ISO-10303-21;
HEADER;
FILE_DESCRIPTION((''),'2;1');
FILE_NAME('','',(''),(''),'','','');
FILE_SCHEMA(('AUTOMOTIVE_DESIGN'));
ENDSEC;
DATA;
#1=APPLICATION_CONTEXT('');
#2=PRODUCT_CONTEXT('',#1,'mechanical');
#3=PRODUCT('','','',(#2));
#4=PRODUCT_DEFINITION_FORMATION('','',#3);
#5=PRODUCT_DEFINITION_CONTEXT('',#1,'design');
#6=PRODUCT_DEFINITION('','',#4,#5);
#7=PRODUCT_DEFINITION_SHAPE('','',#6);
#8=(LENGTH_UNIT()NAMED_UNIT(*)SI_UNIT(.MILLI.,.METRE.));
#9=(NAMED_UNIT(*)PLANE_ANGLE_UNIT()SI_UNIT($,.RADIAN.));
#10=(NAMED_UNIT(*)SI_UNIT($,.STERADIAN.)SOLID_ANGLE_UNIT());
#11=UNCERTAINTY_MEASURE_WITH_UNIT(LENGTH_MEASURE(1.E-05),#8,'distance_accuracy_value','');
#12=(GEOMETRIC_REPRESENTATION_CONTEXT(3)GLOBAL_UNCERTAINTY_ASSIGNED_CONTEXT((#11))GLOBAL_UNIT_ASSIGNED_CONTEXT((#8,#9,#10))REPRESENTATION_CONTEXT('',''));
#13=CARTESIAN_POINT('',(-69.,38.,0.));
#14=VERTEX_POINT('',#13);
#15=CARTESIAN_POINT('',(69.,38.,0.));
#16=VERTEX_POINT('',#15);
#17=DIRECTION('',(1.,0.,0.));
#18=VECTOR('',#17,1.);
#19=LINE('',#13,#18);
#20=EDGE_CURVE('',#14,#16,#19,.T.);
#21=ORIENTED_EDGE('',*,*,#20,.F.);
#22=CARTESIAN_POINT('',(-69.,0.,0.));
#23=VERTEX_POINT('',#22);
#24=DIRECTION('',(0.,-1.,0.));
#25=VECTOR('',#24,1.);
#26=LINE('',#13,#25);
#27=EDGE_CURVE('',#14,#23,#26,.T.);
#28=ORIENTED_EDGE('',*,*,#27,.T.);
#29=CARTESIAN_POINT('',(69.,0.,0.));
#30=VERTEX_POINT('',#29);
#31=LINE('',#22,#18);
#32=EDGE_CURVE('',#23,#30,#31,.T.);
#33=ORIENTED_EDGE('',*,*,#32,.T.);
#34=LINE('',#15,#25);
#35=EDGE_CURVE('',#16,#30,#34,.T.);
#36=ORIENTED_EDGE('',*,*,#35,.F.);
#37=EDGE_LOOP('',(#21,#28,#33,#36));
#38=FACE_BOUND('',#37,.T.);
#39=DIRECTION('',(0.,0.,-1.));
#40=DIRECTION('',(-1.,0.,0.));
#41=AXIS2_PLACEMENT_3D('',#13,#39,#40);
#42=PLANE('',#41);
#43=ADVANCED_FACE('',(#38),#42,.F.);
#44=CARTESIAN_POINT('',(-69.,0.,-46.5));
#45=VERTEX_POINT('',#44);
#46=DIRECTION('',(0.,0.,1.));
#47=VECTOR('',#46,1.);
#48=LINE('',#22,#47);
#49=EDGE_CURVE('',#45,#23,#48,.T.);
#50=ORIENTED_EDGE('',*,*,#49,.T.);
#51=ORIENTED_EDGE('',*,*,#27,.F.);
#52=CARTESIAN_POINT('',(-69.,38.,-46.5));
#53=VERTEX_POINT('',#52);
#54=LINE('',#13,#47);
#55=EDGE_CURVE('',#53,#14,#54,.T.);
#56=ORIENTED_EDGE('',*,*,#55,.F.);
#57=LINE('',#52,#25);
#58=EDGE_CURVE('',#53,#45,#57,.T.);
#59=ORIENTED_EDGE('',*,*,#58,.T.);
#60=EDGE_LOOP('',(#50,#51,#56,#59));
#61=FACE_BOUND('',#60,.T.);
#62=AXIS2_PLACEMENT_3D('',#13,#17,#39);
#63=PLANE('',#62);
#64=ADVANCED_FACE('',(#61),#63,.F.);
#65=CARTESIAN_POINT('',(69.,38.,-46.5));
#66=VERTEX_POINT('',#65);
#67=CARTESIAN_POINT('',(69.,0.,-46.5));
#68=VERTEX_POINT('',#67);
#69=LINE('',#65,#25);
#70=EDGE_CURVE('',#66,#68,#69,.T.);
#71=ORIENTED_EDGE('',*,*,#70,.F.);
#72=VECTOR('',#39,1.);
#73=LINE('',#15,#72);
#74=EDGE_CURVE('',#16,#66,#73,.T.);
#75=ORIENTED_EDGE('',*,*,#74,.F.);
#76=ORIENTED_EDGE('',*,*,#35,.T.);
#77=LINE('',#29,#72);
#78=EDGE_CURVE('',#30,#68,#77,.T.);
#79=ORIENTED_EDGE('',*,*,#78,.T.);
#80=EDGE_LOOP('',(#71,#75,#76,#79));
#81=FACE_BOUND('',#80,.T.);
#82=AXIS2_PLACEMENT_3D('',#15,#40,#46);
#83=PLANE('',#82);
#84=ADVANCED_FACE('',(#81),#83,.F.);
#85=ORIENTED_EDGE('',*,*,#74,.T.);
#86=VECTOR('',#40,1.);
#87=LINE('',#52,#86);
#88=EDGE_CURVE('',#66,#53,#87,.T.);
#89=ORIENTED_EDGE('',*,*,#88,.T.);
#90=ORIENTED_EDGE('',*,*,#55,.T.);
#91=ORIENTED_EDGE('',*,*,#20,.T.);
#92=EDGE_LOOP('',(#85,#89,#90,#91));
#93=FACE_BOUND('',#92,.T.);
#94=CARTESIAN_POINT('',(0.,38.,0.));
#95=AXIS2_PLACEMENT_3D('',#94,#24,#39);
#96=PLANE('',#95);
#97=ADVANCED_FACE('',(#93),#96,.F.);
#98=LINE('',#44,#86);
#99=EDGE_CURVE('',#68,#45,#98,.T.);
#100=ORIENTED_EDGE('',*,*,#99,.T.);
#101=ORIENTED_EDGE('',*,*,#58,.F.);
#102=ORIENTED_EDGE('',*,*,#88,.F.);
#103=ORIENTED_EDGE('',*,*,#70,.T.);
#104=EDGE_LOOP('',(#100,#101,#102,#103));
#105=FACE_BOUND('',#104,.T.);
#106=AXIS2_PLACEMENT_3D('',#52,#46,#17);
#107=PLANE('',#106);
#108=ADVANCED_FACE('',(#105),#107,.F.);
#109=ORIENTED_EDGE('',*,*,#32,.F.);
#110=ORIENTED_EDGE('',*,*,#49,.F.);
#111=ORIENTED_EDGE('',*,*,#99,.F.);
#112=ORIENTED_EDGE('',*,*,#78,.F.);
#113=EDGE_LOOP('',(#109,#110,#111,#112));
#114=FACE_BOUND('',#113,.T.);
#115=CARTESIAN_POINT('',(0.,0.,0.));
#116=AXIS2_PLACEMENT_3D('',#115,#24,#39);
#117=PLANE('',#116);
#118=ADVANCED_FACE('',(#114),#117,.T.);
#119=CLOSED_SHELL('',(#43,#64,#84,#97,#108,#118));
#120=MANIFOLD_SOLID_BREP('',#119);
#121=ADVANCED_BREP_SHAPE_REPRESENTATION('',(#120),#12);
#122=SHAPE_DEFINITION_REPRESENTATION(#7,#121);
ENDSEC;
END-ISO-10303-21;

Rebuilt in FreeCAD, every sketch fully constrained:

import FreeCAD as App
import Part
import Sketcher
from FreeCAD import Vector
Q = App.Units.Quantity


def add_polygon(sketch, points):
    """Adds a closed chain of lines whose ends are joined by coincident constraints."""
    first, n = sketch.GeometryCount, len(points)
    for a, b in zip(points, points[1:] + points[:1]):
        sketch.addGeometry(Part.LineSegment(App.Vector(*a, 0), App.Vector(*b, 0)), False)
    for i in range(n):
        sketch.addConstraint(Sketcher.Constraint("Coincident", first + i, 2, first + (i + 1) % n, 1))

doc = App.newDocument("Part")
body = doc.addObject("PartDesign::Body", "Body")

# Sketch on XZ plane
sketch1 = body.newObject("Sketcher::SketchObject", "Sketch")
sketch1.AttachmentSupport = (doc.getObject("XZ_Plane"), [""])
sketch1.MapMode = "FlatFace"
add_polygon(sketch1, [(-69, -46), (-69, 0), (69, 0), (69, -46)])  # lines 0-3
sketch1.addConstraint(Sketcher.Constraint("Vertical", 0))
sketch1.addConstraint(Sketcher.Constraint("Horizontal", 1))
sketch1.addConstraint(Sketcher.Constraint("Vertical", 2))
sketch1.addConstraint(Sketcher.Constraint("Horizontal", 3))
sketch1.addConstraint(Sketcher.Constraint("Symmetric", 0, 2, 1, 2, -1, 1))
sketch1.addConstraint(Sketcher.Constraint("DistanceX", 1, 1, 1, 2, Q("138 mm")))
sketch1.addConstraint(Sketcher.Constraint("DistanceY", 0, 1, 0, 2, Q("46.5 mm")))
pad1 = body.newObject("PartDesign::Pad", "Pad")
pad1.Profile = sketch1
pad1.Length = 38
pad1.Reversed = True

doc.recompute()
